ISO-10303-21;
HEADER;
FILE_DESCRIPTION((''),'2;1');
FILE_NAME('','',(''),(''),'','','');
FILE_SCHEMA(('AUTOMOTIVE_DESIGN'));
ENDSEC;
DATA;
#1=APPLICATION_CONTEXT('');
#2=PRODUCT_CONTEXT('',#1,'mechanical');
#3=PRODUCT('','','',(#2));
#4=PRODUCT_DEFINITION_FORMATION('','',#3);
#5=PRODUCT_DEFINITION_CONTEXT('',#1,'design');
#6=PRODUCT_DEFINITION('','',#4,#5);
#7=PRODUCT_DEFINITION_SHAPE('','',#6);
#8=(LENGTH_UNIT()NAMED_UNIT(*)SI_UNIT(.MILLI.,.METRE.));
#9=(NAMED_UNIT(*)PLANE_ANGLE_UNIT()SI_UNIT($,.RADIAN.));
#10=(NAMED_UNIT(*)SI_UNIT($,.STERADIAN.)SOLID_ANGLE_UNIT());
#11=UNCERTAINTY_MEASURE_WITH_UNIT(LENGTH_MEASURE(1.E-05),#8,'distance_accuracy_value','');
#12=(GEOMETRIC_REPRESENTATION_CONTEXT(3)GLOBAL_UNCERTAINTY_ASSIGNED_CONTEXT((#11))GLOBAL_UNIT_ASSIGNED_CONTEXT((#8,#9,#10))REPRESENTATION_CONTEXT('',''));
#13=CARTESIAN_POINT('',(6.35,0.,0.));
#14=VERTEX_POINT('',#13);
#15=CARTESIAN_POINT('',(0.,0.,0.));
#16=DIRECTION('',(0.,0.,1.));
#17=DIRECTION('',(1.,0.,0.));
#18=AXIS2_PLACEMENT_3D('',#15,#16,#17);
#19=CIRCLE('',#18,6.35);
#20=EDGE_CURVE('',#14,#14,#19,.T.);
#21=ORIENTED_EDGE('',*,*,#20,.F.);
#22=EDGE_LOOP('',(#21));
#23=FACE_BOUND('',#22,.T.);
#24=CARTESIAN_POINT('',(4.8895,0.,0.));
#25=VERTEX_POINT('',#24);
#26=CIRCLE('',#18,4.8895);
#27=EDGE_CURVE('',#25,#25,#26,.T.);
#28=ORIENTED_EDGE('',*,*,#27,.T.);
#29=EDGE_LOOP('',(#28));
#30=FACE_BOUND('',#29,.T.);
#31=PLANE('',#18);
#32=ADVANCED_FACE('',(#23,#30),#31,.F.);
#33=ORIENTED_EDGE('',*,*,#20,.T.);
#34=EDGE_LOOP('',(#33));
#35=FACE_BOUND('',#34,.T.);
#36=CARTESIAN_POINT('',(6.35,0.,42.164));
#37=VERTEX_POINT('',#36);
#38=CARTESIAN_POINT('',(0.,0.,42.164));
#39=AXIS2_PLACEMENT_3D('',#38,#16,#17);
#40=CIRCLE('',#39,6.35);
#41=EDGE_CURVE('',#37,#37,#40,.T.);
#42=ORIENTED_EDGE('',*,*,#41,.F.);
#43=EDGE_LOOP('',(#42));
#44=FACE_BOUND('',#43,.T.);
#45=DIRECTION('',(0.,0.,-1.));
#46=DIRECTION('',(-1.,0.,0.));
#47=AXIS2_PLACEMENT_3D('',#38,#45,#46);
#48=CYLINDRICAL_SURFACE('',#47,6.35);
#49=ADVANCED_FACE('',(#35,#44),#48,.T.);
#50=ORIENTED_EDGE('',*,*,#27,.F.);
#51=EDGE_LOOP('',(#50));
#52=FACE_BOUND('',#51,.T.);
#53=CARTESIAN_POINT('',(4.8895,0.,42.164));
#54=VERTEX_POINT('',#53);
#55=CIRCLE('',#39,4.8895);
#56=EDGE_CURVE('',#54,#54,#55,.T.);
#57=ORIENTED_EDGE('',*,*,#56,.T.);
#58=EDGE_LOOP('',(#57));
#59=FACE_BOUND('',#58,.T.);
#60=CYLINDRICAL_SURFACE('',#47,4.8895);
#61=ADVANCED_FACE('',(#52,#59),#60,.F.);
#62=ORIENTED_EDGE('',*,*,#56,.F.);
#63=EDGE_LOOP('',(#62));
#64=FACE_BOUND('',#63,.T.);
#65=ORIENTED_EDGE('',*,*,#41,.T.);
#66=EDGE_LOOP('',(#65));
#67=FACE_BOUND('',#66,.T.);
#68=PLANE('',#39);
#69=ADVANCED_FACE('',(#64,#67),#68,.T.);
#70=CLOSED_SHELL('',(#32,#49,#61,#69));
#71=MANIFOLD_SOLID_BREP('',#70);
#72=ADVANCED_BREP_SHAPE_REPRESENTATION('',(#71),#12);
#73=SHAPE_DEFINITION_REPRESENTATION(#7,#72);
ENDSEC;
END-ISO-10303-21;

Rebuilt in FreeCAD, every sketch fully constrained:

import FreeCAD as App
import Part
import Sketcher
Q = App.Units.Quantity

doc = App.newDocument("Part")
body = doc.addObject("PartDesign::Body", "Body")

sketch1 = doc.addObject("Sketcher::SketchObject", "Sketch")
body.addObject(sketch1)
sketch1.AttachmentSupport = (doc.XY_Plane, [""])
sketch1.MapMode = "FlatFace"
sketch1.addGeometry([
    Part.Circle(App.Vector(0, 0, 0), App.Vector(0, 0, 1), 6.3),
    Part.Circle(App.Vector(0, 0, 0), App.Vector(0, 0, 1), 4.9),
], False)
sketch1.addConstraint([
    Sketcher.Constraint("Coincident", 0, 3, -1, 1),
    Sketcher.Constraint("Coincident", 1, 3, -1, 1),
    Sketcher.Constraint("Diameter", 0, Q("0.5 in")),
    Sketcher.Constraint("Diameter", 1, Q("0.385 in")),
])
pad1 = doc.addObject("PartDesign::Pad", "Pad")
body.addObject(pad1)
pad1.Profile = sketch1
pad1.Length = Q("1.66 in")

doc.recompute()
